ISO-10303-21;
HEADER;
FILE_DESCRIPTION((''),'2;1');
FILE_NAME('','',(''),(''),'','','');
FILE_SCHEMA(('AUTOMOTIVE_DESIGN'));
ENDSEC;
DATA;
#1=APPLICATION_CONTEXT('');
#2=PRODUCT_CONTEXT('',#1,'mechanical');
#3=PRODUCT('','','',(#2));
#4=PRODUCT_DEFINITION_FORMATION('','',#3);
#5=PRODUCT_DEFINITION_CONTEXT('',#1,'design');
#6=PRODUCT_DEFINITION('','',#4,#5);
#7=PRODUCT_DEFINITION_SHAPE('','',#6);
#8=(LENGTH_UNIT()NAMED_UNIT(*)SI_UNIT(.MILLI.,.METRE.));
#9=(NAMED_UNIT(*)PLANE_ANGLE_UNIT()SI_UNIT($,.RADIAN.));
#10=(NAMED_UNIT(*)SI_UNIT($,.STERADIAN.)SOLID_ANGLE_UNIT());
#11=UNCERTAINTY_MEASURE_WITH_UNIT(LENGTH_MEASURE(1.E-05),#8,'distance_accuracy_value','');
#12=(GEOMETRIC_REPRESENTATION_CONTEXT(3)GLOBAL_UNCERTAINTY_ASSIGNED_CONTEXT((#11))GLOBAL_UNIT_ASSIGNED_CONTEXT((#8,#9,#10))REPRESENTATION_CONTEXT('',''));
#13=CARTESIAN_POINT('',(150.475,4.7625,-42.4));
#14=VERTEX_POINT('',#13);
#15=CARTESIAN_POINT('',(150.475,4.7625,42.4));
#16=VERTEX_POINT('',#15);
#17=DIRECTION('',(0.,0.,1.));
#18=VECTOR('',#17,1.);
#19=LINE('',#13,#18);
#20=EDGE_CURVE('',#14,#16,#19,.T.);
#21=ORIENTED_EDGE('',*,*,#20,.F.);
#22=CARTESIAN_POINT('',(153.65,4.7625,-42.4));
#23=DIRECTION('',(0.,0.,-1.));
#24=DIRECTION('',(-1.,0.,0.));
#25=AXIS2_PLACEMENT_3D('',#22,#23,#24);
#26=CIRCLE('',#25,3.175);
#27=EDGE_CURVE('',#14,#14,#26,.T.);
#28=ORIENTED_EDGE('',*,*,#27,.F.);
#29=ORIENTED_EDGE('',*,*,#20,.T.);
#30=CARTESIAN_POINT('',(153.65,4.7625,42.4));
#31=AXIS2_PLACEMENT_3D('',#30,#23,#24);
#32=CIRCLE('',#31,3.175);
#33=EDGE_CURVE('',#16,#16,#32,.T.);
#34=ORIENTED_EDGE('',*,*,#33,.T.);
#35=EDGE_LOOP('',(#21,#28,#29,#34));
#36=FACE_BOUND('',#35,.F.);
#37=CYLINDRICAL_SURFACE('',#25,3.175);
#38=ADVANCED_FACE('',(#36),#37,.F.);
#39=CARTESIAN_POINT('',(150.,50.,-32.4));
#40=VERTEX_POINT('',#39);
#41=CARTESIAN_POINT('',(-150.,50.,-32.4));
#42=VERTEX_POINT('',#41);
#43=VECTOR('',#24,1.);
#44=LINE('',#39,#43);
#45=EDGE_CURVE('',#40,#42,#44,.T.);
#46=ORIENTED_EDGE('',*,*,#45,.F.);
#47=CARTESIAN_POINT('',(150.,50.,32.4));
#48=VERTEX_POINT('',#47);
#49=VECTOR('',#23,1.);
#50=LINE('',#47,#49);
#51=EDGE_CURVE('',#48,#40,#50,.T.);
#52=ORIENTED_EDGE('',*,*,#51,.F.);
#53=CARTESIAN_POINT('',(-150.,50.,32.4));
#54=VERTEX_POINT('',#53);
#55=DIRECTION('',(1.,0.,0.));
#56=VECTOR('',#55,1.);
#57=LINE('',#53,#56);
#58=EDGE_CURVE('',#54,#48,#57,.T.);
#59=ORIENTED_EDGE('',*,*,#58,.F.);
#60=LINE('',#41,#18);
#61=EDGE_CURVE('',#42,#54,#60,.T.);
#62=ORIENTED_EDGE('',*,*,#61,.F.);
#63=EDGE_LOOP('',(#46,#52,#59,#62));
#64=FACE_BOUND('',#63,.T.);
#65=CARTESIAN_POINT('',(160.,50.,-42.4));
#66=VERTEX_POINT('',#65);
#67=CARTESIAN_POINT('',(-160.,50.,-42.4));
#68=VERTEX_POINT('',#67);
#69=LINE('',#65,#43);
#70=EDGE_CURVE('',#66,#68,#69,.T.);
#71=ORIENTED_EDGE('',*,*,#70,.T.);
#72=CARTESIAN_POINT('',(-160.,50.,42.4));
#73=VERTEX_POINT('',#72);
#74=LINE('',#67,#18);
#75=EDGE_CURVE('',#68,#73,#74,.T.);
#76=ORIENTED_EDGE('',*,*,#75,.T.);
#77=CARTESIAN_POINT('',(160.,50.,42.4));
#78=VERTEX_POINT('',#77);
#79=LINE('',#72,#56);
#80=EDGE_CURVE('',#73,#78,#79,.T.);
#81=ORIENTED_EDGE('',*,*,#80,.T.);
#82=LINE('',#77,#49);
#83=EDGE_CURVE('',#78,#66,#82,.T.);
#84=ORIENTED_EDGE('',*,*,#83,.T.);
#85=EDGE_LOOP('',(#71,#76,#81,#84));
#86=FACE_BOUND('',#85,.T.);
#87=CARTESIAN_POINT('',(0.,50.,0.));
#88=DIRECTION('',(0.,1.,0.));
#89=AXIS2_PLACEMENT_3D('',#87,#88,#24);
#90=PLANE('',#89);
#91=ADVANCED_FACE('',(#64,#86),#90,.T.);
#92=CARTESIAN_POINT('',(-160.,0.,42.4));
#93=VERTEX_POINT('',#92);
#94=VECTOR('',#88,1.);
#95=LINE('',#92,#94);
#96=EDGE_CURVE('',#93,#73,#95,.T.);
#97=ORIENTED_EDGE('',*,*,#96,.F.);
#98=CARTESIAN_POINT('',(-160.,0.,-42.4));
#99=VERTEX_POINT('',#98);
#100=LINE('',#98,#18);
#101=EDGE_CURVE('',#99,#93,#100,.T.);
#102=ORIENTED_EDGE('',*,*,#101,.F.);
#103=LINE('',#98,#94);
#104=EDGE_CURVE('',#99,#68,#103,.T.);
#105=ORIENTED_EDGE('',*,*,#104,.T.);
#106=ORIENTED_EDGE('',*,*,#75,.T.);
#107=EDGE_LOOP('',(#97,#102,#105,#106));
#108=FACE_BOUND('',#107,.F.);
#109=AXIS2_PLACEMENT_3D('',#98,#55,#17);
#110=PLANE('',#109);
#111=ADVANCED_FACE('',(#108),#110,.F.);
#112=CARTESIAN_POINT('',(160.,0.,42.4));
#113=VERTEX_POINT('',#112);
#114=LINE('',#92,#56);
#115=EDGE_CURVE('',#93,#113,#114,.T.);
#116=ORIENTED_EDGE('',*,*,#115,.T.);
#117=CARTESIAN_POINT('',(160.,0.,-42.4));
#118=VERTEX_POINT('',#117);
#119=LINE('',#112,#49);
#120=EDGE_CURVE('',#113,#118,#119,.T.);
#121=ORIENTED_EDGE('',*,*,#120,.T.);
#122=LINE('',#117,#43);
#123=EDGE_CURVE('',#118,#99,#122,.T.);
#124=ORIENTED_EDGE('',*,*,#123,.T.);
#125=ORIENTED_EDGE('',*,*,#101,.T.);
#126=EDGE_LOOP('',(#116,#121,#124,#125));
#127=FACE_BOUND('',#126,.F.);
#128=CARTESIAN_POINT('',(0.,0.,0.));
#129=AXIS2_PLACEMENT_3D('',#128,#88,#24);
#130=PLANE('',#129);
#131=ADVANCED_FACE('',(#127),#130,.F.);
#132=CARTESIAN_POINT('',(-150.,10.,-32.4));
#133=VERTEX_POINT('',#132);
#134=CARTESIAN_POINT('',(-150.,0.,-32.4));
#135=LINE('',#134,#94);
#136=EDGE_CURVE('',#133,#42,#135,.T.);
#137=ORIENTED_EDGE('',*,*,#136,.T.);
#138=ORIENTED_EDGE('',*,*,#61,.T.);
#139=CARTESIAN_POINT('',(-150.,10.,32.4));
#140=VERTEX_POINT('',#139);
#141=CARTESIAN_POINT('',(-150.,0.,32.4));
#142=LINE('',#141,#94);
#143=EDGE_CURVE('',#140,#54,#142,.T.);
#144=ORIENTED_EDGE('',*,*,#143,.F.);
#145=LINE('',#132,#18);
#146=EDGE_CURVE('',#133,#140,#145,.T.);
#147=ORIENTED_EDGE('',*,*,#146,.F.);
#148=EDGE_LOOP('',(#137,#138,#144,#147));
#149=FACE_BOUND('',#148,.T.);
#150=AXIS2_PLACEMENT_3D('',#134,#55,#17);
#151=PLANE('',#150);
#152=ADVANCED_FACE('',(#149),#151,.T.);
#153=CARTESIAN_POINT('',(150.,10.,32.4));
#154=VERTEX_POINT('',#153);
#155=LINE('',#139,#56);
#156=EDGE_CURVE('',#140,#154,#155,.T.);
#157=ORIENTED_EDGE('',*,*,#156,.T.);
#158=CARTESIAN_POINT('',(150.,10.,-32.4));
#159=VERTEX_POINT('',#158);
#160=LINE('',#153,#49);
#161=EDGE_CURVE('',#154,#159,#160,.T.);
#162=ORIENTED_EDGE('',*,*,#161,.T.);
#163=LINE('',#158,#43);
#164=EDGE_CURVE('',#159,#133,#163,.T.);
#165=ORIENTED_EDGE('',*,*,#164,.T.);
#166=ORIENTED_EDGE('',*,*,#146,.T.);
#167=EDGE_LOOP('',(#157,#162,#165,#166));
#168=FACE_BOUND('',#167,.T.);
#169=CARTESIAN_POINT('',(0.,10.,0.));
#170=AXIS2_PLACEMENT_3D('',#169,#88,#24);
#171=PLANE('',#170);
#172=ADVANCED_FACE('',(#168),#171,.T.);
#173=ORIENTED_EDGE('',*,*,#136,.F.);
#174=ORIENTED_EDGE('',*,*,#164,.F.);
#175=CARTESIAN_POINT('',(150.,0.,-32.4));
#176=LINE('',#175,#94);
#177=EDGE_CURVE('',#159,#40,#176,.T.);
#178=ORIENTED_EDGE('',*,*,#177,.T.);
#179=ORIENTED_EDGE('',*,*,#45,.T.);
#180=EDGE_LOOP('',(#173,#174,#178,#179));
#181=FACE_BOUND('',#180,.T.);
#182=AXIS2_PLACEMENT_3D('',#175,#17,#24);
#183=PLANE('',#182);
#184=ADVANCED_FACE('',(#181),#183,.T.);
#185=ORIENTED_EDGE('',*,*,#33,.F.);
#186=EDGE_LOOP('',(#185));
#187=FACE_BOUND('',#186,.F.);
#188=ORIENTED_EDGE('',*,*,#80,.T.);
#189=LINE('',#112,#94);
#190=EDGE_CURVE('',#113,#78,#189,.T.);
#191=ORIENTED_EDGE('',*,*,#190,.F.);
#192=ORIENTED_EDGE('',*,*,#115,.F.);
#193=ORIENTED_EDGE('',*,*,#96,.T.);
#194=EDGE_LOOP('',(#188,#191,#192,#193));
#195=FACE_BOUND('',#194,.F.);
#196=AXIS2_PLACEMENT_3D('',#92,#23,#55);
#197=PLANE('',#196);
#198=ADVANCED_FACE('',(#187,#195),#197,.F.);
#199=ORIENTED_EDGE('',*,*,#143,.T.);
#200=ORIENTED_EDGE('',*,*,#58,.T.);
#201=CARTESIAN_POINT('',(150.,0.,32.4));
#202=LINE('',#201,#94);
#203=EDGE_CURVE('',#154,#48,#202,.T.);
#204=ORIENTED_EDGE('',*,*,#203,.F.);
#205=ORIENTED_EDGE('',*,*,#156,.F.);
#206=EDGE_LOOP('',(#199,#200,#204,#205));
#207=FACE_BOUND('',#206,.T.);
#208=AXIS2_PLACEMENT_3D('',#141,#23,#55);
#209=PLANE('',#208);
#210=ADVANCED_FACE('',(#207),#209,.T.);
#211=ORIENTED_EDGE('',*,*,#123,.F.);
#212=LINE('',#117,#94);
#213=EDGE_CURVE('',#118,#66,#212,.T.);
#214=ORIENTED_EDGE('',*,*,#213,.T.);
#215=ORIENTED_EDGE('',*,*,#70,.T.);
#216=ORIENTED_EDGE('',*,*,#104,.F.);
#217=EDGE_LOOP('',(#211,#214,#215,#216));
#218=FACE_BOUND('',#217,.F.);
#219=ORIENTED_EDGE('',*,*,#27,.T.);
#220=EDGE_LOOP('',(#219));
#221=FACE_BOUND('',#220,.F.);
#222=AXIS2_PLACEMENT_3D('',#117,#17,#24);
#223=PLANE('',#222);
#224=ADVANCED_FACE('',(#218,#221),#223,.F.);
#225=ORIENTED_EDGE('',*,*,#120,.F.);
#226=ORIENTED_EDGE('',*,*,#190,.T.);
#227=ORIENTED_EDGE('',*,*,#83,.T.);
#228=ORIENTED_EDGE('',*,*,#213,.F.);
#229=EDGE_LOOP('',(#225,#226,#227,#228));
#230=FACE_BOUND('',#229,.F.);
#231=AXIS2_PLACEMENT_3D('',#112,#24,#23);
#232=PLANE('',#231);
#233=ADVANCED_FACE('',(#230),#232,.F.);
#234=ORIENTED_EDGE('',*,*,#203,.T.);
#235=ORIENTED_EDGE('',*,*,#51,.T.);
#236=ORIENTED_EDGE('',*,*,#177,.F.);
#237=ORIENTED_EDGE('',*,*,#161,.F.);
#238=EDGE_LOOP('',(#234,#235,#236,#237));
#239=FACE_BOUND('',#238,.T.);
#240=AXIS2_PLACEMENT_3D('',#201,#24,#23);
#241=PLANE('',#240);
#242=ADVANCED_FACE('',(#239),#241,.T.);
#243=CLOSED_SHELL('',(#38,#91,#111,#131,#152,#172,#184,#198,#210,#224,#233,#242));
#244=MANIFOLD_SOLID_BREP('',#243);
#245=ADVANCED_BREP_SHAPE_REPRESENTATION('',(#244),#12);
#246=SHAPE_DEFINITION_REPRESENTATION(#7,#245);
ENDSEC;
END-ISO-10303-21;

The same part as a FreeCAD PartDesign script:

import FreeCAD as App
import Part
import Sketcher

doc = App.newDocument("Part")
body = doc.addObject("PartDesign::Body", "Body")

sketch1 = body.newObject("Sketcher::SketchObject", "Sketch")
sketch1.AttachmentSupport = (doc.getObject("XZ_Plane"), [""])
sketch1.MapMode = "FlatFace"
sketch1.addGeometry(Part.LineSegment(App.Vector(-150, -32, 0), App.Vector(-150, 32, 0)), False)
sketch1.addGeometry(Part.LineSegment(App.Vector(-150, 32, 0), App.Vector(150, 32, 0)), False)
sketch1.addGeometry(Part.LineSegment(App.Vector(150, 32, 0), App.Vector(150, -32, 0)), False)
sketch1.addGeometry(Part.LineSegment(App.Vector(150, -32, 0), App.Vector(-150, -32, 0)), False)
sketch1.addConstraint(Sketcher.Constraint("Coincident", 0, 2, 1, 1))
sketch1.addConstraint(Sketcher.Constraint("Coincident", 1, 2, 2, 1))
sketch1.addConstraint(Sketcher.Constraint("Coincident", 2, 2, 3, 1))
sketch1.addConstraint(Sketcher.Constraint("Coincident", 3, 2, 0, 1))
sketch1.addConstraint(Sketcher.Constraint("Vertical", 0))
sketch1.addConstraint(Sketcher.Constraint("Horizontal", 1))
sketch1.addConstraint(Sketcher.Constraint("Vertical", 2))
sketch1.addConstraint(Sketcher.Constraint("Horizontal", 3))
sketch1.addConstraint(Sketcher.Constraint("Symmetric", 0, 2, 2, 2, -1, 1))
sketch1.addConstraint(Sketcher.Constraint("DistanceX", 1, 1, 1, 2, 300.0))
sketch1.addConstraint(Sketcher.Constraint("DistanceY", 0, 1, 0, 2, 64.8))
pad1 = body.newObject("PartDesign::Pad", "Pad")
pad1.Profile = sketch1
pad1.Length = 10
pad1.Reversed = True

sketch2 = body.newObject("Sketcher::SketchObject", "Sketch001")
sketch2.AttachmentSupport = (doc.getObject("XZ_Plane"), [""])
sketch2.MapMode = "FlatFace"
sketch2.addGeometry(Part.LineSegment(App.Vector(-160, -42, 0), App.Vector(-160, 42, 0)), False)
sketch2.addGeometry(Part.LineSegment(App.Vector(-160, 42, 0), App.Vector(160, 42, 0)), False)
sketch2.addGeometry(Part.LineSegment(App.Vector(160, 42, 0), App.Vector(160, -42, 0)), False)
sketch2.addGeometry(Part.LineSegment(App.Vector(160, -42, 0), App.Vector(-160, -42, 0)), False)
sketch2.addGeometry(Part.LineSegment(App.Vector(150, 32, 0), App.Vector(-150, 32, 0)), False)
sketch2.addGeometry(Part.LineSegment(App.Vector(-150, 32, 0), App.Vector(-150, -32, 0)), False)
sketch2.addGeometry(Part.LineSegment(App.Vector(-150, -32, 0), App.Vector(150, -32, 0)), False)
sketch2.addGeometry(Part.LineSegment(App.Vector(150, -32, 0), App.Vector(150, 32, 0)), False)
sketch2.addConstraint(Sketcher.Constraint("Coincident", 0, 2, 1, 1))
sketch2.addConstraint(Sketcher.Constraint("Coincident", 1, 2, 2, 1))
sketch2.addConstraint(Sketcher.Constraint("Coincident", 2, 2, 3, 1))
sketch2.addConstraint(Sketcher.Constraint("Coincident", 3, 2, 0, 1))
sketch2.addConstraint(Sketcher.Constraint("Coincident", 4, 2, 5, 1))
sketch2.addConstraint(Sketcher.Constraint("Coincident", 5, 2, 6, 1))
sketch2.addConstraint(Sketcher.Constraint("Coincident", 6, 2, 7, 1))
sketch2.addConstraint(Sketcher.Constraint("Coincident", 7, 2, 4, 1))
sketch2.addConstraint(Sketcher.Constraint("Vertical", 0))
sketch2.addConstraint(Sketcher.Constraint("Horizontal", 1))
sketch2.addConstraint(Sketcher.Constraint("Vertical", 2))
sketch2.addConstraint(Sketcher.Constraint("Horizontal", 3))
sketch2.addConstraint(Sketcher.Constraint("Horizontal", 4))
sketch2.addConstraint(Sketcher.Constraint("Vertical", 5))
sketch2.addConstraint(Sketcher.Constraint("Horizontal", 6))
sketch2.addConstraint(Sketcher.Constraint("Vertical", 7))
sketch2.addConstraint(Sketcher.Constraint("Symmetric", 0, 2, 2, 2, -1, 1))
sketch2.addConstraint(Sketcher.Constraint("Symmetric", 4, 2, 6, 2, -1, 1))
sketch2.addConstraint(Sketcher.Constraint("DistanceX", 4, 2, 4, 1, 300.0))
sketch2.addConstraint(Sketcher.Constraint("DistanceY", 0, 1, 0, 2, 84.8))
sketch2.addConstraint(Sketcher.Constraint("DistanceY", 5, 2, 5, 1, 64.8))
sketch2.addConstraint(Sketcher.Constraint("DistanceX", 0, 2, 4, 2, 10.0))
pad2 = body.newObject("PartDesign::Pad", "Pad001")
pad2.Profile = sketch2
pad2.Length = 50
pad2.Reversed = True

sketch3 = body.newObject("Sketcher::SketchObject", "Sketch002")
sketch3.AttachmentSupport = (doc.getObject("XY_Plane"), [""])
sketch3.MapMode = "FlatFace"
sketch3.AttachmentOffset = App.Placement(App.Vector(0, 0, -42.4), App.Rotation())
sketch3.addGeometry(Part.Circle(App.Vector(153.7, 4.8, 0), App.Vector(0, 0, 1), 3.2), False)
sketch3.addConstraint(Sketcher.Constraint("Diameter", 0, 6.35))
sketch3.addConstraint(Sketcher.Constraint("DistanceX", -1, 1, 0, 3, 153.65))
sketch3.addConstraint(Sketcher.Constraint("DistanceY", -1, 1, 0, 3, 4.7625))
pocket1 = body.newObject("PartDesign::Pocket", "Pocket")
pocket1.Profile = sketch3
pocket1.Length = 1000
pocket1.Midplane = True

doc.recompute()
